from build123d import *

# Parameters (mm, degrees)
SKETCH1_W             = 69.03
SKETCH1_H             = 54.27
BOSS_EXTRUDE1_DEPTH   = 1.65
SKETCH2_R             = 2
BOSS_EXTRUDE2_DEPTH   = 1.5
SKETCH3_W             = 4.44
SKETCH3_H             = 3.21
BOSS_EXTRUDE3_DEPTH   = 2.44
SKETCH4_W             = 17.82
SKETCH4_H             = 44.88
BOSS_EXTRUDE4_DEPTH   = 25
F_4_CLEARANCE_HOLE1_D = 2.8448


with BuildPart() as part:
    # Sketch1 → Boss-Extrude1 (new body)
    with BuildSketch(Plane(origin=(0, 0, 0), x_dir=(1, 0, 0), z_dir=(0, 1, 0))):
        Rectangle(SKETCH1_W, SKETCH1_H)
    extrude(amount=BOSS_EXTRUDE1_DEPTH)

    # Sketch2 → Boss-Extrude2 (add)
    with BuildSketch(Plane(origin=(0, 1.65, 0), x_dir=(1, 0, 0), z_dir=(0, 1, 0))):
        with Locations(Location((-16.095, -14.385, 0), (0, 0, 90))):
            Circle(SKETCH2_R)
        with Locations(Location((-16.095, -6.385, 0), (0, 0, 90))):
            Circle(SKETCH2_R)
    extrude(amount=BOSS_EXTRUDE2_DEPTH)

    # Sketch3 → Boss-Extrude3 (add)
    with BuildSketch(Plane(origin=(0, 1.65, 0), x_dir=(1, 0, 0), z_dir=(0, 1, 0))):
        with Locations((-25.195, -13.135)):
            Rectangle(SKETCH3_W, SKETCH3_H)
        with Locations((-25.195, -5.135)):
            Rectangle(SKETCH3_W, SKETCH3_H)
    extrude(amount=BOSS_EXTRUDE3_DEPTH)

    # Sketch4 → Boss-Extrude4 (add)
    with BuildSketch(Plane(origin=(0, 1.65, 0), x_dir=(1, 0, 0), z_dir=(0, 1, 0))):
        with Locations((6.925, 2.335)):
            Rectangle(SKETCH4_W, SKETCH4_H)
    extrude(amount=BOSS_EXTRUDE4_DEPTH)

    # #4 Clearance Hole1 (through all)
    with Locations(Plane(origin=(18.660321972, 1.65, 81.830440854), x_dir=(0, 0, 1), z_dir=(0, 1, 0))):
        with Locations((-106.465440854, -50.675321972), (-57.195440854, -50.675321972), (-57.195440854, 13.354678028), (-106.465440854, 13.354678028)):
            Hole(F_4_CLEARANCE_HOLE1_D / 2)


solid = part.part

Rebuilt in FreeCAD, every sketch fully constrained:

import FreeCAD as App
import Part
import Sketcher

V = App.Vector
Q = App.Units.Quantity

doc = App.newDocument("Part")
body = doc.addObject("PartDesign::Body", "Body")

# Sketch on XZ plane
sketch1 = body.newObject("Sketcher::SketchObject", "Sketch")
sketch1.AttachmentSupport = (doc.getObject("XZ_Plane"), [""])
sketch1.MapMode = "FlatFace"
sketch1.addGeometry([
    Part.LineSegment(V(-35, -27, 0), V(-35, 27, 0)),
    Part.LineSegment(V(-35, 27, 0), V(35, 27, 0)),
    Part.LineSegment(V(35, 27, 0), V(35, -27, 0)),
    Part.LineSegment(V(35, -27, 0), V(-35, -27, 0)),
], False)
sketch1.addConstraint([
    Sketcher.Constraint("Coincident", 0, 2, 1, 1),
    Sketcher.Constraint("Coincident", 1, 2, 2, 1),
    Sketcher.Constraint("Coincident", 2, 2, 3, 1),
    Sketcher.Constraint("Coincident", 3, 2, 0, 1),
    Sketcher.Constraint("Vertical", 0),
    Sketcher.Constraint("Horizontal", 1),
    Sketcher.Constraint("Vertical", 2),
    Sketcher.Constraint("Horizontal", 3),
    Sketcher.Constraint("Symmetric", 0, 2, 2, 2, -1, 1),
    Sketcher.Constraint("DistanceX", 1, 1, 1, 2, Q("69.03 mm")),
    Sketcher.Constraint("DistanceY", 0, 1, 0, 2, Q("54.27 mm")),
])
pad1 = body.newObject("PartDesign::Pad", "Pad")
pad1.Profile = sketch1
pad1.Length = 1.65
pad1.Reversed = True

# Sketch on XZ plane
sketch2 = body.newObject("Sketcher::SketchObject", "Sketch001")
sketch2.AttachmentSupport = (doc.getObject("XZ_Plane"), [""])
sketch2.MapMode = "FlatFace"
sketch2.AttachmentOffset = App.Placement(V(0, 0, -1.65), App.Rotation())
sketch2.addGeometry([
    Part.Circle(V(-16.1, 14.4, 0), V(0, 0, 1), 2),
    Part.Circle(V(-16.1, 6.4, 0), V(0, 0, 1), 2),
], False)
sketch2.addConstraint([
    Sketcher.Constraint("Equal", 0, 1),
    Sketcher.Constraint("Vertical", 0, 3, 1, 3),
    Sketcher.Constraint("Diameter", 0, Q("4 mm")),
    Sketcher.Constraint("DistanceY", 1, 3, 0, 3, Q("8 mm")),
    Sketcher.Constraint("DistanceX", 0, 3, -1, 1, Q("16.095 mm")),
    Sketcher.Constraint("DistanceY", -1, 1, 0, 3, Q("14.385 mm")),
])
pad2 = body.newObject("PartDesign::Pad", "Pad001")
pad2.Profile = sketch2
pad2.Length = 1.5
pad2.Reversed = True

# Sketch on XZ plane
sketch3 = body.newObject("Sketcher::SketchObject", "Sketch002")
sketch3.AttachmentSupport = (doc.getObject("XZ_Plane"), [""])
sketch3.MapMode = "FlatFace"
sketch3.AttachmentOffset = App.Placement(V(0, 0, -1.65), App.Rotation())
sketch3.addGeometry([
    Part.LineSegment(V(-27.4, 11.5, 0), V(-27.4, 14.7, 0)),  # 0
    Part.LineSegment(V(-27.4, 14.7, 0), V(-23, 14.7, 0)),  # 1
    Part.LineSegment(V(-23, 14.7, 0), V(-23, 11.5, 0)),  # 2
    Part.LineSegment(V(-23, 11.5, 0), V(-27.4, 11.5, 0)),  # 3
    Part.LineSegment(V(-27.4, 3.5, 0), V(-27.4, 6.7, 0)),  # 4
    Part.LineSegment(V(-27.4, 6.7, 0), V(-23, 6.7, 0)),  # 5
    Part.LineSegment(V(-23, 6.7, 0), V(-23, 3.5, 0)),  # 6
    Part.LineSegment(V(-23, 3.5, 0), V(-27.4, 3.5, 0)),  # 7
], False)
sketch3.addConstraint([
    Sketcher.Constraint("Coincident", 0, 2, 1, 1),
    Sketcher.Constraint("Coincident", 1, 2, 2, 1),
    Sketcher.Constraint("Coincident", 2, 2, 3, 1),
    Sketcher.Constraint("Coincident", 3, 2, 0, 1),
    Sketcher.Constraint("Coincident", 4, 2, 5, 1),
    Sketcher.Constraint("Coincident", 5, 2, 6, 1),
    Sketcher.Constraint("Coincident", 6, 2, 7, 1),
    Sketcher.Constraint("Coincident", 7, 2, 4, 1),
    Sketcher.Constraint("Vertical", 0),
    Sketcher.Constraint("Horizontal", 1),
    Sketcher.Constraint("Vertical", 2),
    Sketcher.Constraint("Horizontal", 3),
    Sketcher.Constraint("Vertical", 4),
    Sketcher.Constraint("Horizontal", 5),
    Sketcher.Constraint("Vertical", 6),
    Sketcher.Constraint("Horizontal", 7),
    Sketcher.Constraint("Vertical", 3, 2, 4, 2),
    Sketcher.Constraint("Vertical", 2, 2, 5, 2),
    Sketcher.Constraint("Equal", 2, 4),
    Sketcher.Constraint("DistanceY", 4, 2, 0, 2, Q("8 mm")),
    Sketcher.Constraint("DistanceX", 1, 1, 1, 2, Q("4.44 mm")),
    Sketcher.Constraint("DistanceY", 0, 1, 0, 2, Q("3.21 mm")),
    Sketcher.Constraint("DistanceY", -1, 1, 0, 2, Q("14.74 mm")),
    Sketcher.Constraint("DistanceX", 0, 2, -1, 1, Q("27.415 mm")),
])
pad3 = body.newObject("PartDesign::Pad", "Pad002")
pad3.Profile = sketch3
pad3.Length = 2.44
pad3.Reversed = True

# Sketch on XZ plane
sketch4 = body.newObject("Sketcher::SketchObject", "Sketch003")
sketch4.AttachmentSupport = (doc.getObject("XZ_Plane"), [""])
sketch4.MapMode = "FlatFace"
sketch4.AttachmentOffset = App.Placement(V(0, 0, -1.65), App.Rotation())
sketch4.addGeometry([
    Part.LineSegment(V(-2, -25, 0), V(-2, 20, 0)),
    Part.LineSegment(V(-2, 20, 0), V(16, 20, 0)),
    Part.LineSegment(V(16, 20, 0), V(16, -25, 0)),
    Part.LineSegment(V(16, -25, 0), V(-2, -25, 0)),
], False)
sketch4.addConstraint([
    Sketcher.Constraint("Coincident", 0, 2, 1, 1),
    Sketcher.Constraint("Coincident", 1, 2, 2, 1),
    Sketcher.Constraint("Coincident", 2, 2, 3, 1),
    Sketcher.Constraint("Coincident", 3, 2, 0, 1),
    Sketcher.Constraint("Vertical", 0),
    Sketcher.Constraint("Horizontal", 1),
    Sketcher.Constraint("Vertical", 2),
    Sketcher.Constraint("Horizontal", 3),
    Sketcher.Constraint("DistanceX", 1, 1, 1, 2, Q("17.82 mm")),
    Sketcher.Constraint("DistanceY", 0, 1, 0, 2, Q("44.88 mm")),
    Sketcher.Constraint("DistanceX", 0, 2, -1, 1, Q("1.985 mm")),
    Sketcher.Constraint("DistanceY", -1, 1, 0, 2, Q("20.105 mm")),
])
pad4 = body.newObject("PartDesign::Pad", "Pad003")
pad4.Profile = sketch4
pad4.Length = 25
pad4.Reversed = True

# Sketch on XZ plane
sketch5 = body.newObject("Sketcher::SketchObject", "Sketch004")
sketch5.AttachmentSupport = (doc.getObject("XZ_Plane"), [""])
sketch5.MapMode = "FlatFace"
sketch5.AttachmentOffset = App.Placement(V(0, 0, -1.65), App.Rotation())
sketch5.addGeometry([
    Part.Circle(V(-32, -24.6, 0), V(0, 0, 1), 1.4),
    Part.Circle(V(-32, 24.6, 0), V(0, 0, 1), 1.4),
    Part.Circle(V(32, 24.6, 0), V(0, 0, 1), 1.4),
    Part.Circle(V(32, -24.6, 0), V(0, 0, 1), 1.4),
], False)
sketch5.addConstraint([
    Sketcher.Constraint("Equal", 0, 1),
    Sketcher.Constraint("Equal", 1, 2),
    Sketcher.Constraint("Equal", 2, 3),
    Sketcher.Constraint("Symmetric", 0, 3, 2, 3, -1, 1),
    Sketcher.Constraint("Symmetric", 1, 3, 3, 3, -1, 1),
    Sketcher.Constraint("Symmetric", 1, 3, 2, 3, -2),
    Sketcher.Constraint("Diameter", 0, Q("2.8448 mm")),
    Sketcher.Constraint("DistanceY", 0, 3, 1, 3, Q("49.27 mm")),
    Sketcher.Constraint("DistanceX", 1, 3, 2, 3, Q("64.03 mm")),
])
doc.recompute()
hole = body.newObject("PartDesign::Hole", "Hole")
hole.Profile = sketch5
hole.ThreadType = "None"
hole.Diameter = 2.8448
hole.DepthType = "ThroughAll"
hole.Reversed = True

doc.recompute()
